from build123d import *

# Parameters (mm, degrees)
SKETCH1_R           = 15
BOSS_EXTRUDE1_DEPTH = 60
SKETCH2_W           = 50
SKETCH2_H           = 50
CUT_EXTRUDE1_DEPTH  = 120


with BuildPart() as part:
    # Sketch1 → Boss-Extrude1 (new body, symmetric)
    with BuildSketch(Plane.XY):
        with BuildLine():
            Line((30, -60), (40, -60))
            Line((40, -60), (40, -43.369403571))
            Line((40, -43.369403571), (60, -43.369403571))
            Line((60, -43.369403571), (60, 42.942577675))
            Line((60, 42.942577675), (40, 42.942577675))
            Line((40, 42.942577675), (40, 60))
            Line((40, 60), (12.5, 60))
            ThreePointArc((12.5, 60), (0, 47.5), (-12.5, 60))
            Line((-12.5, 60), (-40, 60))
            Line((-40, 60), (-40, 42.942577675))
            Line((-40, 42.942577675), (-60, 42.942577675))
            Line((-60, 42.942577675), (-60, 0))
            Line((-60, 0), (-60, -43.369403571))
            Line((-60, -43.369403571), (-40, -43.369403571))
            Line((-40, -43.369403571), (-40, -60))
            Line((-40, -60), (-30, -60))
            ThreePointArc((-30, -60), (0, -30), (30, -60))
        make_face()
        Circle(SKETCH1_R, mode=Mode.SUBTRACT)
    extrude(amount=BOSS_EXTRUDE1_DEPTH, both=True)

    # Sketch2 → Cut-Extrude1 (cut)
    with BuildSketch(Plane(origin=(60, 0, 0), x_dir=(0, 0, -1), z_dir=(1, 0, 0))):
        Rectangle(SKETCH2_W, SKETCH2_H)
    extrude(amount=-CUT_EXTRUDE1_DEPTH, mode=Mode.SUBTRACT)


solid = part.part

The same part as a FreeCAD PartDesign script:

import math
import FreeCAD as App
import Part
import Sketcher
from FreeCAD import Vector
Q = App.Units.Quantity


def add_polygon(sketch, points):
    """Adds a closed chain of lines whose ends are joined by coincident constraints."""
    first, n = sketch.GeometryCount, len(points)
    for a, b in zip(points, points[1:] + points[:1]):
        sketch.addGeometry(Part.LineSegment(App.Vector(*a, 0), App.Vector(*b, 0)), False)
    for i in range(n):
        sketch.addConstraint(Sketcher.Constraint("Coincident", first + i, 2, first + (i + 1) % n, 1))

doc = App.newDocument("Part")
body = doc.addObject("PartDesign::Body", "Body")

# Sketch on XY plane
sketch1 = body.newObject("Sketcher::SketchObject", "Sketch")
sketch1.AttachmentSupport = (doc.getObject("XY_Plane"), [""])
sketch1.MapMode = "FlatFace"
sketch1.addGeometry(Part.LineSegment(Vector(30, -60, 0), Vector(40, -60, 0)), False)
sketch1.addGeometry(Part.LineSegment(Vector(40, -60, 0), Vector(40, -43, 0)), False)
sketch1.addGeometry(Part.LineSegment(Vector(40, -43, 0), Vector(60, -43, 0)), False)
sketch1.addGeometry(Part.LineSegment(Vector(60, -43, 0), Vector(60, 43, 0)), False)
sketch1.addGeometry(Part.LineSegment(Vector(60, 43, 0), Vector(40, 43, 0)), False)
sketch1.addGeometry(Part.LineSegment(Vector(40, 43, 0), Vector(40, 60, 0)), False)
sketch1.addGeometry(Part.LineSegment(Vector(40, 60, 0), Vector(12, 60, 0)), False)
sketch1.addGeometry(Part.ArcOfCircle(Part.Circle(Vector(0, 60, 0), Vector(0, 0, 1), 12), math.radians(180), math.radians(360)), False)
sketch1.addGeometry(Part.LineSegment(Vector(-12, 60, 0), Vector(-40, 60, 0)), False)
sketch1.addGeometry(Part.LineSegment(Vector(-40, 60, 0), Vector(-40, 43, 0)), False)
sketch1.addGeometry(Part.LineSegment(Vector(-40, 43, 0), Vector(-60, 43, 0)), False)
sketch1.addGeometry(Part.LineSegment(Vector(-60, 43, 0), Vector(-60, -43, 0)), False)
sketch1.addGeometry(Part.LineSegment(Vector(-60, -43, 0), Vector(-40, -43, 0)), False)
sketch1.addGeometry(Part.LineSegment(Vector(-40, -43, 0), Vector(-40, -60, 0)), False)
sketch1.addGeometry(Part.LineSegment(Vector(-40, -60, 0), Vector(-30, -60, 0)), False)
sketch1.addGeometry(Part.ArcOfCircle(Part.Circle(Vector(0, -60, 0), Vector(0, 0, 1), 30), math.radians(0), math.radians(180)), False)
sketch1.addGeometry(Part.Circle(Vector(0, 0, 0), Vector(0, 0, 1), 15), False)
sketch1.addConstraint(Sketcher.Constraint("Coincident", 0, 2, 1, 1))
sketch1.addConstraint(Sketcher.Constraint("Coincident", 1, 2, 2, 1))
sketch1.addConstraint(Sketcher.Constraint("Coincident", 2, 2, 3, 1))
sketch1.addConstraint(Sketcher.Constraint("Coincident", 3, 2, 4, 1))
sketch1.addConstraint(Sketcher.Constraint("Coincident", 4, 2, 5, 1))
sketch1.addConstraint(Sketcher.Constraint("Coincident", 5, 2, 6, 1))
sketch1.addConstraint(Sketcher.Constraint("Coincident", 6, 2, 7, 2))
sketch1.addConstraint(Sketcher.Constraint("Coincident", 7, 1, 8, 1))
sketch1.addConstraint(Sketcher.Constraint("Coincident", 8, 2, 9, 1))
sketch1.addConstraint(Sketcher.Constraint("Coincident", 9, 2, 10, 1))
sketch1.addConstraint(Sketcher.Constraint("Coincident", 10, 2, 11, 1))
sketch1.addConstraint(Sketcher.Constraint("Coincident", 11, 2, 12, 1))
sketch1.addConstraint(Sketcher.Constraint("Coincident", 12, 2, 13, 1))
sketch1.addConstraint(Sketcher.Constraint("Coincident", 13, 2, 14, 1))
sketch1.addConstraint(Sketcher.Constraint("Coincident", 14, 2, 15, 2))
sketch1.addConstraint(Sketcher.Constraint("Coincident", 15, 1, 0, 1))
sketch1.addConstraint(Sketcher.Constraint("Horizontal", 0))
sketch1.addConstraint(Sketcher.Constraint("Vertical", 1))
sketch1.addConstraint(Sketcher.Constraint("Horizontal", 2))
sketch1.addConstraint(Sketcher.Constraint("Vertical", 3))
sketch1.addConstraint(Sketcher.Constraint("Horizontal", 4))
sketch1.addConstraint(Sketcher.Constraint("Vertical", 5))
sketch1.addConstraint(Sketcher.Constraint("Horizontal", 6))
sketch1.addConstraint(Sketcher.Constraint("Horizontal", 8))
sketch1.addConstraint(Sketcher.Constraint("Vertical", 9))
sketch1.addConstraint(Sketcher.Constraint("Horizontal", 10))
sketch1.addConstraint(Sketcher.Constraint("Vertical", 11))
sketch1.addConstraint(Sketcher.Constraint("Horizontal", 12))
sketch1.addConstraint(Sketcher.Constraint("Vertical", 13))
sketch1.addConstraint(Sketcher.Constraint("Horizontal", 14))
sketch1.addConstraint(Sketcher.Constraint("Coincident", 16, 3, -1, 1))
sketch1.addConstraint(Sketcher.Constraint("Symmetric", 7, 3, 15, 3, -1, 1))
sketch1.addConstraint(Sketcher.Constraint("Symmetric", 0, 2, 8, 2, -1, 1))
sketch1.addConstraint(Sketcher.Constraint("Symmetric", 5, 2, 13, 2, -1, 1))
sketch1.addConstraint(Sketcher.Constraint("Symmetric", 6, 2, 7, 1, -2))
sketch1.addConstraint(Sketcher.Constraint("Symmetric", 4, 2, 9, 2, -2))
sketch1.addConstraint(Sketcher.Constraint("Symmetric", 2, 2, 11, 2, -2))
sketch1.addConstraint(Sketcher.Constraint("Horizontal", 15, 3, 0, 2))
sketch1.addConstraint(Sketcher.Constraint("Diameter", 16, Q("30 mm")))
sketch1.addConstraint(Sketcher.Constraint("Radius", 15, Q("30 mm")))
sketch1.addConstraint(Sketcher.Constraint("Radius", 7, Q("12.5 mm")))
sketch1.addConstraint(Sketcher.Constraint("DistanceX", 0, 1, 0, 2, Q("10 mm")))
sketch1.addConstraint(Sketcher.Constraint("DistanceX", 2, 1, 2, 2, Q("20 mm")))
sketch1.addConstraint(Sketcher.Constraint("DistanceY", -1, 1, 7, 3, Q("60 mm")))
sketch1.addConstraint(Sketcher.Constraint("DistanceY", 3, 1, 3, 2, Q("86.311981 mm")))
sketch1.addConstraint(Sketcher.Constraint("DistanceY", 1, 1, 1, 2, Q("16.630596 mm")))
pad1 = body.newObject("PartDesign::Pad", "Pad")
pad1.Profile = sketch1
pad1.Length = 120
pad1.Midplane = True

# Sketch on YZ plane
sketch2 = body.newObject("Sketcher::SketchObject", "Sketch001")
sketch2.AttachmentSupport = (doc.getObject("YZ_Plane"), [""])
sketch2.MapMode = "FlatFace"
sketch2.AttachmentOffset = App.Placement(Vector(0, 0, 60), App.Rotation())
add_polygon(sketch2, [(25, 25), (-25, 25), (-25, -25), (25, -25)])  # lines 0-3
sketch2.addConstraint(Sketcher.Constraint("Horizontal", 0))
sketch2.addConstraint(Sketcher.Constraint("Vertical", 1))
sketch2.addConstraint(Sketcher.Constraint("Horizontal", 2))
sketch2.addConstraint(Sketcher.Constraint("Vertical", 3))
sketch2.addConstraint(Sketcher.Constraint("Symmetric", 0, 2, 2, 2, -1, 1))
sketch2.addConstraint(Sketcher.Constraint("Equal", 2, 1))
sketch2.addConstraint(Sketcher.Constraint("DistanceX", 0, 2, 0, 1, Q("50 mm")))
pocket1 = body.newObject("PartDesign::Pocket", "Pocket")
pocket1.Profile = sketch2
pocket1.Length = 120

doc.recompute()
